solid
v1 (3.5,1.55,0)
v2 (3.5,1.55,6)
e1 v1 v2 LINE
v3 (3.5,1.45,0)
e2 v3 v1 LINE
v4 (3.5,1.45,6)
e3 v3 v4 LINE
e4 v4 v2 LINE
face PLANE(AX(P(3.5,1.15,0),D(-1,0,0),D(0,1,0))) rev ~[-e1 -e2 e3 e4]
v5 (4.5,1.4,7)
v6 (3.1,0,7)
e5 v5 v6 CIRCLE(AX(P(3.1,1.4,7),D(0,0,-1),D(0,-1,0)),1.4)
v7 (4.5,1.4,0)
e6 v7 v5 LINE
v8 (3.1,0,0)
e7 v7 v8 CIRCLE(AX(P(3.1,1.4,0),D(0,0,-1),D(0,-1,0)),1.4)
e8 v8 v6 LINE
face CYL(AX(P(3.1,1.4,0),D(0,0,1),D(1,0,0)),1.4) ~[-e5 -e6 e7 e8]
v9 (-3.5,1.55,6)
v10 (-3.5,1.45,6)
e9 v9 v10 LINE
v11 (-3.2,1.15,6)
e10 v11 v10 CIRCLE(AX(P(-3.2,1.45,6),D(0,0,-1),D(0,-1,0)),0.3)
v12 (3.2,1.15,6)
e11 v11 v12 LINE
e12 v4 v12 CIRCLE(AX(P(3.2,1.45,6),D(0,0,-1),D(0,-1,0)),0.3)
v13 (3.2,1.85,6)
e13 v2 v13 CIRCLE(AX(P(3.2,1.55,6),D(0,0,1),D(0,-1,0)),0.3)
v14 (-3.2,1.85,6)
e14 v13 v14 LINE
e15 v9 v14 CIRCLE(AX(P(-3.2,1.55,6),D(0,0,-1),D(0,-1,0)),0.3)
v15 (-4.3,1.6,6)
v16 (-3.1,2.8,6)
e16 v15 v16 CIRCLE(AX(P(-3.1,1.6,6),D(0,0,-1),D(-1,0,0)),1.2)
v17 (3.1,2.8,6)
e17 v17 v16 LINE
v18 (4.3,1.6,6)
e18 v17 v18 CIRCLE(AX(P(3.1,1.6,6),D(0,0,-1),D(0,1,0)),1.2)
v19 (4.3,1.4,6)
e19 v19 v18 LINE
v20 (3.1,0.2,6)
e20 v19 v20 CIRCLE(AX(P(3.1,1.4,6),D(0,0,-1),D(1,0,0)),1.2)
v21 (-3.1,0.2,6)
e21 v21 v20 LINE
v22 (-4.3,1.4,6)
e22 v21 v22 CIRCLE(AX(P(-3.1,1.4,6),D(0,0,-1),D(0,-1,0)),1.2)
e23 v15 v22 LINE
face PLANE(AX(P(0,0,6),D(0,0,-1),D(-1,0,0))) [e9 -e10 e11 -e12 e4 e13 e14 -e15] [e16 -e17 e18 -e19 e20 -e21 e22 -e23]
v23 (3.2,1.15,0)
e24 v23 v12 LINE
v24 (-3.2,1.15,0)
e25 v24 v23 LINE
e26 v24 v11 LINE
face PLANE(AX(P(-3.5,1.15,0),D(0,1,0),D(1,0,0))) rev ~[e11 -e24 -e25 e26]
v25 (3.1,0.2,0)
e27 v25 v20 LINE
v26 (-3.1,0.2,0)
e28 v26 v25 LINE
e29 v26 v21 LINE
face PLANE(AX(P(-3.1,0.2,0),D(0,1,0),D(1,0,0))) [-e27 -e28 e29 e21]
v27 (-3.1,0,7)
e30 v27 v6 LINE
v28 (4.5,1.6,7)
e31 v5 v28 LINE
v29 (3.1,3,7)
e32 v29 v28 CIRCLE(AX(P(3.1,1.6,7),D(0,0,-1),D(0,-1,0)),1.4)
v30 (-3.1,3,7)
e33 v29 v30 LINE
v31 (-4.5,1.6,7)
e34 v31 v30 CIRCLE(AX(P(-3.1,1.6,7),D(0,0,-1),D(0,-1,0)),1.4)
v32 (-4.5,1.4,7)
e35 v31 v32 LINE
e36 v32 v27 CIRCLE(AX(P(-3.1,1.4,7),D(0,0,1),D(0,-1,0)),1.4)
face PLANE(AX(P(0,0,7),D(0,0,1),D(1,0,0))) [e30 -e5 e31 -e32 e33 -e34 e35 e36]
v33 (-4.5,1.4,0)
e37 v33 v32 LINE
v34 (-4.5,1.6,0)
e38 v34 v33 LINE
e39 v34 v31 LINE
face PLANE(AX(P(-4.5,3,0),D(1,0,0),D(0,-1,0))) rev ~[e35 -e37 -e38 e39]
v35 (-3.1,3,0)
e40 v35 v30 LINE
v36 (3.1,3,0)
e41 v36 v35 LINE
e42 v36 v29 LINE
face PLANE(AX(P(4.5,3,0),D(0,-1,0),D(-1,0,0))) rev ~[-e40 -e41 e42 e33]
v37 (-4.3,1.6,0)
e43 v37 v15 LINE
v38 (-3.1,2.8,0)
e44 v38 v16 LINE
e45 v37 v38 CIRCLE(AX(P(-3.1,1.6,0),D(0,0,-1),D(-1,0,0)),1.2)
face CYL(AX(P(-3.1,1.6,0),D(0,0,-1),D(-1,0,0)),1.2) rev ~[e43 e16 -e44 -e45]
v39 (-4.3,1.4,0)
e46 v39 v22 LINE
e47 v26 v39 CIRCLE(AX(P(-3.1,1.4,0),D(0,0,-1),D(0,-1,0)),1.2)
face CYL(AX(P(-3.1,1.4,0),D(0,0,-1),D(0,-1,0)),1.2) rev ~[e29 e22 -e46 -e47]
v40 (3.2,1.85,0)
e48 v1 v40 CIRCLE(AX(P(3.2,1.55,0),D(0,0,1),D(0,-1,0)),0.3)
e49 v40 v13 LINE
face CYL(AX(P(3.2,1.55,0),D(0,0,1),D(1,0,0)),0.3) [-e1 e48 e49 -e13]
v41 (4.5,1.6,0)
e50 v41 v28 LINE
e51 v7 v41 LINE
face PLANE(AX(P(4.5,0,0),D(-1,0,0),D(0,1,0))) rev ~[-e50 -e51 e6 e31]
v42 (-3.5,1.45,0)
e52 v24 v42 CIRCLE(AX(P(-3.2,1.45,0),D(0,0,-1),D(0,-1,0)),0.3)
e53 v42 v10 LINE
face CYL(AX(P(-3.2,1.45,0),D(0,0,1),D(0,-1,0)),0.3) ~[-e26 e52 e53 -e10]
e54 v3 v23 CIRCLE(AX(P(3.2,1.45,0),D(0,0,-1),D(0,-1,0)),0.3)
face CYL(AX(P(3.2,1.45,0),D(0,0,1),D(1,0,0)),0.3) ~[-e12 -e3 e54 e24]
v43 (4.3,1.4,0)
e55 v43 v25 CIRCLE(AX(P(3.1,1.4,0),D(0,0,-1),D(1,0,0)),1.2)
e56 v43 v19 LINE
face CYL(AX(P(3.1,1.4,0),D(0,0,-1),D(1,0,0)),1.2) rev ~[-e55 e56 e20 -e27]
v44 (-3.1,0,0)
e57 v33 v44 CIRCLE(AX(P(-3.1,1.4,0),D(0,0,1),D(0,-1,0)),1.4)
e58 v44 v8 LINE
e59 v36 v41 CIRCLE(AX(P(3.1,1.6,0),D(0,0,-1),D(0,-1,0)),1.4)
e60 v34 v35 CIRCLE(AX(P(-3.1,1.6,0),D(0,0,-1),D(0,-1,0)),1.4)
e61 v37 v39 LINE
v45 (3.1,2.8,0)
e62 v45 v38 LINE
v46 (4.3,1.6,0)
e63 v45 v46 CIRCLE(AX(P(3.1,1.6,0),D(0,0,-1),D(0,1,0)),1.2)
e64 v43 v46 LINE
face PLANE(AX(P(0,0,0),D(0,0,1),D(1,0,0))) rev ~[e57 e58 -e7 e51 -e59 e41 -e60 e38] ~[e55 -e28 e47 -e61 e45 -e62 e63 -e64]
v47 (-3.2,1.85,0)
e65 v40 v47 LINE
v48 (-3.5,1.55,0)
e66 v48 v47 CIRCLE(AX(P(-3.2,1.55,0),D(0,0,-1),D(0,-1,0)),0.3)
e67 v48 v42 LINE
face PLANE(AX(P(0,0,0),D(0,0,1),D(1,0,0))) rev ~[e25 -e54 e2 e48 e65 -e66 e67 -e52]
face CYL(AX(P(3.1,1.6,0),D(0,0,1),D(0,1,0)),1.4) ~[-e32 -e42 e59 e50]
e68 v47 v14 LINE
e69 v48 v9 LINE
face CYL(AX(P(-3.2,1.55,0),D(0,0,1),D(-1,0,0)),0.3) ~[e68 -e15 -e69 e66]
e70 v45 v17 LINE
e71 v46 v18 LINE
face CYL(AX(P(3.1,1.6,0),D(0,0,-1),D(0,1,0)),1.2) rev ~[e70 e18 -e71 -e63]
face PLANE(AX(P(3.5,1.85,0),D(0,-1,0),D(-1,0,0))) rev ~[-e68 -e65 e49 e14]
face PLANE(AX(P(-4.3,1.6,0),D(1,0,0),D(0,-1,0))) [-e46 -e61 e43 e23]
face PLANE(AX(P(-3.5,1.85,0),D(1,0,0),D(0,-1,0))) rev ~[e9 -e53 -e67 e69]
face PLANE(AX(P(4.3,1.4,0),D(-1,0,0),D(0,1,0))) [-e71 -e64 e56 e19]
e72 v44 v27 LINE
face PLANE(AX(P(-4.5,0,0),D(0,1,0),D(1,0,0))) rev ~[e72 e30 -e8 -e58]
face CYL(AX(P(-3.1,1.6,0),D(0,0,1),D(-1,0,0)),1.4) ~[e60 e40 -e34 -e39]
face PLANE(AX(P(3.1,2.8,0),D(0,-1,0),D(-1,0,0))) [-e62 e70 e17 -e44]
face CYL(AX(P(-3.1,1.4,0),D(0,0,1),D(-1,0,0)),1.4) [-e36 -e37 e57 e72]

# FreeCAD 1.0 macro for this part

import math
import FreeCAD as App
import Part
import Sketcher
Q = App.Units.Quantity


def edges_at(feature, points):
    """Names of the edges that pass closest to the given points."""
    edges = feature.Shape.Edges
    near = lambda p: min(range(len(edges)), key=lambda i: edges[i].distToShape(Part.Vertex(*p))[0])
    return sorted({f"Edge{near(p) + 1}" for p in points})


def add_polygon(sketch, points):
    """Adds a closed chain of lines whose ends are joined by coincident constraints."""
    first, n = sketch.GeometryCount, len(points)
    for a, b in zip(points, points[1:] + points[:1]):
        sketch.addGeometry(Part.LineSegment(App.Vector(*a, 0), App.Vector(*b, 0)), False)
    for i in range(n):
        sketch.addConstraint(Sketcher.Constraint("Coincident", first + i, 2, first + (i + 1) % n, 1))

doc = App.newDocument("Part")
body = doc.addObject("PartDesign::Body", "Body")

# Sketch on XY plane
sketch1 = doc.addObject("Sketcher::SketchObject", "Sketch")
body.addObject(sketch1)
sketch1.AttachmentSupport = (doc.XY_Plane, [""])
sketch1.MapMode = "FlatFace"
add_polygon(sketch1, [(-4.5, 3), (-4.5, 0), (4.5, 0), (4.5, 3)])  # lines 0-3
sketch1.addConstraint([
    Sketcher.Constraint("Vertical", 0),
    Sketcher.Constraint("Horizontal", 1),
    Sketcher.Constraint("Vertical", 2),
    Sketcher.Constraint("Horizontal", 3),
    Sketcher.Constraint("Symmetric", 0, 2, 1, 2, -1, 1),
    Sketcher.Constraint("DistanceX", 1, 1, 1, 2, Q("9 mm")),
    Sketcher.Constraint("DistanceY", 0, 2, 0, 1, Q("3 mm")),
])
pad1 = doc.addObject("PartDesign::Pad", "Pad")
body.addObject(pad1)
pad1.Profile = sketch1
pad1.Length = 7
doc.recompute()

fillet = doc.addObject("PartDesign::Fillet", "Fillet")
body.addObject(fillet)
fillet.Base = (pad1, edges_at(pad1, [
    (4.5, 3, 3.5),
    (-4.5, 3, 3.5),
    (-4.5, 0, 3.5),
    (4.5, 0, 3.5),
]))
fillet.Radius = 1.4

# Sketch on XY plane
sketch2 = doc.addObject("Sketcher::SketchObject", "Sketch001")
body.addObject(sketch2)
sketch2.AttachmentSupport = (doc.XY_Plane, [""])
sketch2.MapMode = "FlatFace"
sketch2.addGeometry(Part.LineSegment(App.Vector(-4.3, 1.4, 0), App.Vector(-4.3, 1.6, 0)), False)  # 0
sketch2.addGeometry(Part.ArcOfCircle(Part.Circle(App.Vector(-3.1, 1.6, 0), App.Vector(0, 0, 1), 1.2), math.radians(90), math.radians(180)), False)  # 1
sketch2.addGeometry(Part.LineSegment(App.Vector(-3.1, 2.8, 0), App.Vector(3.1, 2.8, 0)), False)  # 2
sketch2.addGeometry(Part.ArcOfCircle(Part.Circle(App.Vector(3.1, 1.6, 0), App.Vector(0, 0, 1), 1.2), math.radians(0), math.radians(90)), False)  # 3
sketch2.addGeometry(Part.LineSegment(App.Vector(4.3, 1.6, 0), App.Vector(4.3, 1.4, 0)), False)  # 4
sketch2.addGeometry(Part.ArcOfCircle(Part.Circle(App.Vector(3.1, 1.4, 0), App.Vector(0, 0, 1), 1.2), math.radians(-90), math.radians(0)), False)  # 5
sketch2.addGeometry(Part.LineSegment(App.Vector(3.1, 0.2, 0), App.Vector(-3.1, 0.2, 0)), False)  # 6
sketch2.addGeometry(Part.ArcOfCircle(Part.Circle(App.Vector(-3.1, 1.4, 0), App.Vector(0, 0, 1), 1.2), math.radians(180), math.radians(270)), False)  # 7
add_polygon(sketch2, [(3.5, 1.15), (3.5, 1.85), (-3.5, 1.85), (-3.5, 1.15)])  # lines 8-11
sketch2.addConstraint([
    Sketcher.Constraint("Tangent", 0, 2, 1, 2),
    Sketcher.Constraint("Tangent", 1, 1, 2, 1),
    Sketcher.Constraint("Tangent", 2, 2, 3, 2),
    Sketcher.Constraint("Tangent", 3, 1, 4, 1),
    Sketcher.Constraint("Tangent", 4, 2, 5, 2),
    Sketcher.Constraint("Tangent", 5, 1, 6, 1),
    Sketcher.Constraint("Tangent", 6, 2, 7, 2),
    Sketcher.Constraint("Tangent", 7, 1, 0, 1),
    Sketcher.Constraint("Vertical", 0),
    Sketcher.Constraint("Horizontal", 2),
    Sketcher.Constraint("Vertical", 4),
    Sketcher.Constraint("Horizontal", 6),
    Sketcher.Constraint("Vertical", 8),
    Sketcher.Constraint("Horizontal", 9),
    Sketcher.Constraint("Vertical", 10),
    Sketcher.Constraint("Horizontal", 11),
    Sketcher.Constraint("Equal", 1, 3),
    Sketcher.Constraint("Equal", 3, 5),
    Sketcher.Constraint("Equal", 5, 7),
    Sketcher.Constraint("DistanceX", 9, 2, 9, 1, Q("7 mm")),
    Sketcher.Constraint("DistanceY", 0, 1, 0, 2, Q("0.2 mm")),
    Sketcher.Constraint("DistanceY", 8, 1, 8, 2, Q("0.7 mm")),
    Sketcher.Constraint("DistanceY", -1, 1, 5, 1, Q("0.2 mm")),
    Sketcher.Constraint("Radius", 1, Q("1.2 mm")),
    Sketcher.Constraint("DistanceX", 2, 1, 2, 2, Q("6.2 mm")),
    Sketcher.Constraint("DistanceX", 1, 3, -1, 1, Q("3.1 mm")),
    Sketcher.Constraint("DistanceX", -1, 1, 8, 2, Q("3.5 mm")),
    Sketcher.Constraint("DistanceY", -1, 1, 8, 2, Q("1.85 mm")),
])
pocket1 = doc.addObject("PartDesign::Pocket", "Pocket")
body.addObject(pocket1)
pocket1.Profile = sketch2
pocket1.Length = 6
pocket1.Reversed = True
doc.recompute()

fillet2 = doc.addObject("PartDesign::Fillet", "Fillet001")
body.addObject(fillet2)
fillet2.Base = (pocket1, edges_at(pocket1, [
    (3.5, 1.15, 3),
    (3.5, 1.85, 3),
    (-3.5, 1.15, 3),
    (-3.5, 1.85, 3),
]))
fillet2.Radius = 0.3

doc.recompute()
